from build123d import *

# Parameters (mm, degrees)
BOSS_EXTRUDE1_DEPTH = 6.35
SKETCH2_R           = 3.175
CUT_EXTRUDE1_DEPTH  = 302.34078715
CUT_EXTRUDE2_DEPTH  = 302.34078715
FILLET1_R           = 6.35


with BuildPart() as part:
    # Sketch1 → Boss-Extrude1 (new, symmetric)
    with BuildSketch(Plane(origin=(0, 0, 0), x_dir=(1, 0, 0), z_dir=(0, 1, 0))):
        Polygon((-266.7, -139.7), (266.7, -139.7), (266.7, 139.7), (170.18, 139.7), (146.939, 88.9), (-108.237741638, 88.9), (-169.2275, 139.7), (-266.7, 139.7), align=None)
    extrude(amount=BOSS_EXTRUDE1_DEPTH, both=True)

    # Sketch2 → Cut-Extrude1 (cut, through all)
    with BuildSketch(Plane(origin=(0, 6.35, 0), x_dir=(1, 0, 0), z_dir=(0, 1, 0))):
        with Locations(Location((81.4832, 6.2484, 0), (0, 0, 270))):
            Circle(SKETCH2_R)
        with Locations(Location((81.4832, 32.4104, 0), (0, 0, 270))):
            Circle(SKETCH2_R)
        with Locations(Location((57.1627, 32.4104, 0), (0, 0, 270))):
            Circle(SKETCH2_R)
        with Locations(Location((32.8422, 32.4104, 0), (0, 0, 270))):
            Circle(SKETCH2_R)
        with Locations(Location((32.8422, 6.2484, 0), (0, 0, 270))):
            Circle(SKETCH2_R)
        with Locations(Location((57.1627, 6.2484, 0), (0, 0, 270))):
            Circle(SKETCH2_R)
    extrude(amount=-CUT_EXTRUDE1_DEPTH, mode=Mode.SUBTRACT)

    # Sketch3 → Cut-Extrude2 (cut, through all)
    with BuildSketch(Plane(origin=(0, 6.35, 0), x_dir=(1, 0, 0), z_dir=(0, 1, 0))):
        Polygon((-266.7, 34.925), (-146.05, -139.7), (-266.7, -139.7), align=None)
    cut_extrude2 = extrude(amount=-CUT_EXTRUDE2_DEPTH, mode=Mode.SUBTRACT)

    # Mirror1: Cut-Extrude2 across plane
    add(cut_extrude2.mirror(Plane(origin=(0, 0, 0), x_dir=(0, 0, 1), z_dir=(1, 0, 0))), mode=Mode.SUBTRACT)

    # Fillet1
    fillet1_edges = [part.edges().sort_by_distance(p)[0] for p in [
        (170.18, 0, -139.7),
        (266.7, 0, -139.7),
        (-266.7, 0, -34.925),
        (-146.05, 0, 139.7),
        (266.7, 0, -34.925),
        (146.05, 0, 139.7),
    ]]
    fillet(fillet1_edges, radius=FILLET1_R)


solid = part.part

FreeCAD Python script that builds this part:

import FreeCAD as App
import Part
import Sketcher

V = App.Vector
Q = App.Units.Quantity


def edges_at(feature, points):
    """Names of the edges that pass closest to the given points."""
    edges = feature.Shape.Edges
    near = lambda p: min(range(len(edges)), key=lambda i: edges[i].distToShape(Part.Vertex(*p))[0])
    return sorted({f"Edge{near(p) + 1}" for p in points})


def add_polygon(sketch, points):
    """Adds a closed chain of lines whose ends are joined by coincident constraints."""
    first, n = sketch.GeometryCount, len(points)
    for a, b in zip(points, points[1:] + points[:1]):
        sketch.addGeometry(Part.LineSegment(App.Vector(*a, 0), App.Vector(*b, 0)), False)
    for i in range(n):
        sketch.addConstraint(Sketcher.Constraint("Coincident", first + i, 2, first + (i + 1) % n, 1))

doc = App.newDocument("Part")
body = doc.addObject("PartDesign::Body", "Body")

sketch1 = body.newObject("Sketcher::SketchObject", "Sketch")
sketch1.AttachmentSupport = (doc.getObject("XZ_Plane"), [""])
sketch1.MapMode = "FlatFace"
add_polygon(sketch1, [(-267, 140), (267, 140), (267, -140), (170, -140), (147, -89), (-108, -89), (-169, -140), (-267, -140)])
sketch1.addConstraint(Sketcher.Constraint("Horizontal", 0))
sketch1.addConstraint(Sketcher.Constraint("Vertical", 1))
sketch1.addConstraint(Sketcher.Constraint("Horizontal", 2))
sketch1.addConstraint(Sketcher.Constraint("Horizontal", 4))
sketch1.addConstraint(Sketcher.Constraint("Horizontal", 6))
sketch1.addConstraint(Sketcher.Constraint("Vertical", 7))
sketch1.addConstraint(Sketcher.Constraint("Symmetric", 0, 2, 6, 2, -1, 1))
sketch1.addConstraint(Sketcher.Constraint("Horizontal", 2, 2, 5, 2))
sketch1.addConstraint(Sketcher.Constraint("DistanceX", 0, 1, 0, 2, Q("21 in")))
sketch1.addConstraint(Sketcher.Constraint("DistanceY", 1, 2, 1, 1, Q("11 in")))
sketch1.addConstraint(Sketcher.Constraint("DistanceX", 2, 2, 2, 1, Q("3.8 in")))
sketch1.addConstraint(Sketcher.Constraint("DistanceY", 2, 2, 3, 2, Q("2 in")))
sketch1.addConstraint(Sketcher.Constraint("Distance", 5, Q("3.125 in")))
sketch1.addConstraint(Sketcher.Constraint("DistanceX", 6, 2, 6, 1, Q("3.8375 in")))
sketch1.addConstraint(Sketcher.Constraint("DistanceX", -1, 1, 3, 2, Q("5.785 in")))
pad1 = body.newObject("PartDesign::Pad", "Pad")
pad1.Profile = sketch1
pad1.Length = Q("0.5 in")
pad1.Midplane = True

sketch2 = body.newObject("Sketcher::SketchObject", "Sketch001")
sketch2.AttachmentSupport = (doc.getObject("XZ_Plane"), [""])
sketch2.MapMode = "FlatFace"
sketch2.AttachmentOffset = App.Placement(V(0, 0, -0.25 * 25.4), App.Rotation())
sketch2.addGeometry(Part.Circle(V(81.5, -6.2, 0), V(0, 0, 1), 3.2), False)
sketch2.addGeometry(Part.Circle(V(81.5, -32.4, 0), V(0, 0, 1), 3.2), False)
sketch2.addGeometry(Part.Circle(V(57.2, -32.4, 0), V(0, 0, 1), 3.2), False)
sketch2.addGeometry(Part.Circle(V(32.8, -32.4, 0), V(0, 0, 1), 3.2), False)
sketch2.addGeometry(Part.Circle(V(32.8, -6.2, 0), V(0, 0, 1), 3.2), False)
sketch2.addGeometry(Part.Circle(V(57.2, -6.2, 0), V(0, 0, 1), 3.2), False)
sketch2.addConstraint(Sketcher.Constraint("Equal", 0, 1))
sketch2.addConstraint(Sketcher.Constraint("Equal", 1, 2))
sketch2.addConstraint(Sketcher.Constraint("Equal", 2, 3))
sketch2.addConstraint(Sketcher.Constraint("Equal", 3, 4))
sketch2.addConstraint(Sketcher.Constraint("Equal", 4, 5))
sketch2.addConstraint(Sketcher.Constraint("Horizontal", 1, 3, 2, 3))
sketch2.addConstraint(Sketcher.Constraint("Horizontal", 2, 3, 3, 3))
sketch2.addConstraint(Sketcher.Constraint("Horizontal", 0, 3, 4, 3))
sketch2.addConstraint(Sketcher.Constraint("Horizontal", 4, 3, 5, 3))
sketch2.addConstraint(Sketcher.Constraint("Vertical", 0, 3, 1, 3))
sketch2.addConstraint(Sketcher.Constraint("Vertical", 3, 3, 4, 3))
sketch2.addConstraint(Sketcher.Constraint("Vertical", 2, 3, 5, 3))
sketch2.addConstraint(Sketcher.Constraint("Diameter", 0, Q("0.25 in")))
sketch2.addConstraint(Sketcher.Constraint("DistanceY", 1, 3, 0, 3, Q("1.03 in")))
sketch2.addConstraint(Sketcher.Constraint("DistanceX", -1, 1, 0, 3, Q("3.208 in")))
sketch2.addConstraint(Sketcher.Constraint("DistanceY", 0, 3, -1, 1, Q("0.246 in")))
sketch2.addConstraint(Sketcher.Constraint("DistanceX", -1, 1, 3, 3, Q("1.293 in")))
sketch2.addConstraint(Sketcher.Constraint("DistanceX", -1, 1, 2, 3, Q("2.2505 in")))
pocket1 = body.newObject("PartDesign::Pocket", "Pocket")
pocket1.Profile = sketch2
pocket1.Type = "ThroughAll"
pocket1.Reversed = True

sketch3 = body.newObject("Sketcher::SketchObject", "Sketch002")
sketch3.AttachmentSupport = (doc.getObject("XZ_Plane"), [""])
sketch3.MapMode = "FlatFace"
sketch3.AttachmentOffset = App.Placement(V(0, 0, -0.25 * 25.4), App.Rotation())
add_polygon(sketch3, [(-146, 140), (-267, -35), (-267, 140)])
sketch3.addConstraint(Sketcher.Constraint("Vertical", 1))
sketch3.addConstraint(Sketcher.Constraint("Horizontal", 2))
sketch3.addConstraint(Sketcher.Constraint("DistanceX", 2, 1, 2, 2, Q("4.75 in")))
sketch3.addConstraint(Sketcher.Constraint("DistanceX", 0, 2, -1, 1, Q("10.5 in")))
sketch3.addConstraint(Sketcher.Constraint("DistanceY", -1, 1, 1, 2, Q("5.5 in")))
sketch3.addConstraint(Sketcher.Constraint("DistanceY", 1, 1, 1, 2, Q("6.875 in")))
pocket2 = body.newObject("PartDesign::Pocket", "Pocket001")
pocket2.Profile = sketch3
pocket2.Type = "ThroughAll"
pocket2.Reversed = True
doc.recompute()

mirrored = body.newObject("PartDesign::Mirrored", "Mirrored")
mirrored.Originals = [pocket2]
mirrored.MirrorPlane = (doc.getObject("YZ_Plane"), [""])
body.Tip = mirrored
doc.recompute()

fillet = body.newObject("PartDesign::Fillet", "Fillet")
fillet.Base = (mirrored, edges_at(mirrored, [
    (170.18, 0, -139.7),
    (266.7, 0, -139.7),
    (-266.7, 0, -34.925),
    (-146.05, 0, 139.7),
    (266.7, 0, -34.925),
    (146.05, 0, 139.7),
]))
fillet.Radius = Q("0.25 in")

doc.recompute()
